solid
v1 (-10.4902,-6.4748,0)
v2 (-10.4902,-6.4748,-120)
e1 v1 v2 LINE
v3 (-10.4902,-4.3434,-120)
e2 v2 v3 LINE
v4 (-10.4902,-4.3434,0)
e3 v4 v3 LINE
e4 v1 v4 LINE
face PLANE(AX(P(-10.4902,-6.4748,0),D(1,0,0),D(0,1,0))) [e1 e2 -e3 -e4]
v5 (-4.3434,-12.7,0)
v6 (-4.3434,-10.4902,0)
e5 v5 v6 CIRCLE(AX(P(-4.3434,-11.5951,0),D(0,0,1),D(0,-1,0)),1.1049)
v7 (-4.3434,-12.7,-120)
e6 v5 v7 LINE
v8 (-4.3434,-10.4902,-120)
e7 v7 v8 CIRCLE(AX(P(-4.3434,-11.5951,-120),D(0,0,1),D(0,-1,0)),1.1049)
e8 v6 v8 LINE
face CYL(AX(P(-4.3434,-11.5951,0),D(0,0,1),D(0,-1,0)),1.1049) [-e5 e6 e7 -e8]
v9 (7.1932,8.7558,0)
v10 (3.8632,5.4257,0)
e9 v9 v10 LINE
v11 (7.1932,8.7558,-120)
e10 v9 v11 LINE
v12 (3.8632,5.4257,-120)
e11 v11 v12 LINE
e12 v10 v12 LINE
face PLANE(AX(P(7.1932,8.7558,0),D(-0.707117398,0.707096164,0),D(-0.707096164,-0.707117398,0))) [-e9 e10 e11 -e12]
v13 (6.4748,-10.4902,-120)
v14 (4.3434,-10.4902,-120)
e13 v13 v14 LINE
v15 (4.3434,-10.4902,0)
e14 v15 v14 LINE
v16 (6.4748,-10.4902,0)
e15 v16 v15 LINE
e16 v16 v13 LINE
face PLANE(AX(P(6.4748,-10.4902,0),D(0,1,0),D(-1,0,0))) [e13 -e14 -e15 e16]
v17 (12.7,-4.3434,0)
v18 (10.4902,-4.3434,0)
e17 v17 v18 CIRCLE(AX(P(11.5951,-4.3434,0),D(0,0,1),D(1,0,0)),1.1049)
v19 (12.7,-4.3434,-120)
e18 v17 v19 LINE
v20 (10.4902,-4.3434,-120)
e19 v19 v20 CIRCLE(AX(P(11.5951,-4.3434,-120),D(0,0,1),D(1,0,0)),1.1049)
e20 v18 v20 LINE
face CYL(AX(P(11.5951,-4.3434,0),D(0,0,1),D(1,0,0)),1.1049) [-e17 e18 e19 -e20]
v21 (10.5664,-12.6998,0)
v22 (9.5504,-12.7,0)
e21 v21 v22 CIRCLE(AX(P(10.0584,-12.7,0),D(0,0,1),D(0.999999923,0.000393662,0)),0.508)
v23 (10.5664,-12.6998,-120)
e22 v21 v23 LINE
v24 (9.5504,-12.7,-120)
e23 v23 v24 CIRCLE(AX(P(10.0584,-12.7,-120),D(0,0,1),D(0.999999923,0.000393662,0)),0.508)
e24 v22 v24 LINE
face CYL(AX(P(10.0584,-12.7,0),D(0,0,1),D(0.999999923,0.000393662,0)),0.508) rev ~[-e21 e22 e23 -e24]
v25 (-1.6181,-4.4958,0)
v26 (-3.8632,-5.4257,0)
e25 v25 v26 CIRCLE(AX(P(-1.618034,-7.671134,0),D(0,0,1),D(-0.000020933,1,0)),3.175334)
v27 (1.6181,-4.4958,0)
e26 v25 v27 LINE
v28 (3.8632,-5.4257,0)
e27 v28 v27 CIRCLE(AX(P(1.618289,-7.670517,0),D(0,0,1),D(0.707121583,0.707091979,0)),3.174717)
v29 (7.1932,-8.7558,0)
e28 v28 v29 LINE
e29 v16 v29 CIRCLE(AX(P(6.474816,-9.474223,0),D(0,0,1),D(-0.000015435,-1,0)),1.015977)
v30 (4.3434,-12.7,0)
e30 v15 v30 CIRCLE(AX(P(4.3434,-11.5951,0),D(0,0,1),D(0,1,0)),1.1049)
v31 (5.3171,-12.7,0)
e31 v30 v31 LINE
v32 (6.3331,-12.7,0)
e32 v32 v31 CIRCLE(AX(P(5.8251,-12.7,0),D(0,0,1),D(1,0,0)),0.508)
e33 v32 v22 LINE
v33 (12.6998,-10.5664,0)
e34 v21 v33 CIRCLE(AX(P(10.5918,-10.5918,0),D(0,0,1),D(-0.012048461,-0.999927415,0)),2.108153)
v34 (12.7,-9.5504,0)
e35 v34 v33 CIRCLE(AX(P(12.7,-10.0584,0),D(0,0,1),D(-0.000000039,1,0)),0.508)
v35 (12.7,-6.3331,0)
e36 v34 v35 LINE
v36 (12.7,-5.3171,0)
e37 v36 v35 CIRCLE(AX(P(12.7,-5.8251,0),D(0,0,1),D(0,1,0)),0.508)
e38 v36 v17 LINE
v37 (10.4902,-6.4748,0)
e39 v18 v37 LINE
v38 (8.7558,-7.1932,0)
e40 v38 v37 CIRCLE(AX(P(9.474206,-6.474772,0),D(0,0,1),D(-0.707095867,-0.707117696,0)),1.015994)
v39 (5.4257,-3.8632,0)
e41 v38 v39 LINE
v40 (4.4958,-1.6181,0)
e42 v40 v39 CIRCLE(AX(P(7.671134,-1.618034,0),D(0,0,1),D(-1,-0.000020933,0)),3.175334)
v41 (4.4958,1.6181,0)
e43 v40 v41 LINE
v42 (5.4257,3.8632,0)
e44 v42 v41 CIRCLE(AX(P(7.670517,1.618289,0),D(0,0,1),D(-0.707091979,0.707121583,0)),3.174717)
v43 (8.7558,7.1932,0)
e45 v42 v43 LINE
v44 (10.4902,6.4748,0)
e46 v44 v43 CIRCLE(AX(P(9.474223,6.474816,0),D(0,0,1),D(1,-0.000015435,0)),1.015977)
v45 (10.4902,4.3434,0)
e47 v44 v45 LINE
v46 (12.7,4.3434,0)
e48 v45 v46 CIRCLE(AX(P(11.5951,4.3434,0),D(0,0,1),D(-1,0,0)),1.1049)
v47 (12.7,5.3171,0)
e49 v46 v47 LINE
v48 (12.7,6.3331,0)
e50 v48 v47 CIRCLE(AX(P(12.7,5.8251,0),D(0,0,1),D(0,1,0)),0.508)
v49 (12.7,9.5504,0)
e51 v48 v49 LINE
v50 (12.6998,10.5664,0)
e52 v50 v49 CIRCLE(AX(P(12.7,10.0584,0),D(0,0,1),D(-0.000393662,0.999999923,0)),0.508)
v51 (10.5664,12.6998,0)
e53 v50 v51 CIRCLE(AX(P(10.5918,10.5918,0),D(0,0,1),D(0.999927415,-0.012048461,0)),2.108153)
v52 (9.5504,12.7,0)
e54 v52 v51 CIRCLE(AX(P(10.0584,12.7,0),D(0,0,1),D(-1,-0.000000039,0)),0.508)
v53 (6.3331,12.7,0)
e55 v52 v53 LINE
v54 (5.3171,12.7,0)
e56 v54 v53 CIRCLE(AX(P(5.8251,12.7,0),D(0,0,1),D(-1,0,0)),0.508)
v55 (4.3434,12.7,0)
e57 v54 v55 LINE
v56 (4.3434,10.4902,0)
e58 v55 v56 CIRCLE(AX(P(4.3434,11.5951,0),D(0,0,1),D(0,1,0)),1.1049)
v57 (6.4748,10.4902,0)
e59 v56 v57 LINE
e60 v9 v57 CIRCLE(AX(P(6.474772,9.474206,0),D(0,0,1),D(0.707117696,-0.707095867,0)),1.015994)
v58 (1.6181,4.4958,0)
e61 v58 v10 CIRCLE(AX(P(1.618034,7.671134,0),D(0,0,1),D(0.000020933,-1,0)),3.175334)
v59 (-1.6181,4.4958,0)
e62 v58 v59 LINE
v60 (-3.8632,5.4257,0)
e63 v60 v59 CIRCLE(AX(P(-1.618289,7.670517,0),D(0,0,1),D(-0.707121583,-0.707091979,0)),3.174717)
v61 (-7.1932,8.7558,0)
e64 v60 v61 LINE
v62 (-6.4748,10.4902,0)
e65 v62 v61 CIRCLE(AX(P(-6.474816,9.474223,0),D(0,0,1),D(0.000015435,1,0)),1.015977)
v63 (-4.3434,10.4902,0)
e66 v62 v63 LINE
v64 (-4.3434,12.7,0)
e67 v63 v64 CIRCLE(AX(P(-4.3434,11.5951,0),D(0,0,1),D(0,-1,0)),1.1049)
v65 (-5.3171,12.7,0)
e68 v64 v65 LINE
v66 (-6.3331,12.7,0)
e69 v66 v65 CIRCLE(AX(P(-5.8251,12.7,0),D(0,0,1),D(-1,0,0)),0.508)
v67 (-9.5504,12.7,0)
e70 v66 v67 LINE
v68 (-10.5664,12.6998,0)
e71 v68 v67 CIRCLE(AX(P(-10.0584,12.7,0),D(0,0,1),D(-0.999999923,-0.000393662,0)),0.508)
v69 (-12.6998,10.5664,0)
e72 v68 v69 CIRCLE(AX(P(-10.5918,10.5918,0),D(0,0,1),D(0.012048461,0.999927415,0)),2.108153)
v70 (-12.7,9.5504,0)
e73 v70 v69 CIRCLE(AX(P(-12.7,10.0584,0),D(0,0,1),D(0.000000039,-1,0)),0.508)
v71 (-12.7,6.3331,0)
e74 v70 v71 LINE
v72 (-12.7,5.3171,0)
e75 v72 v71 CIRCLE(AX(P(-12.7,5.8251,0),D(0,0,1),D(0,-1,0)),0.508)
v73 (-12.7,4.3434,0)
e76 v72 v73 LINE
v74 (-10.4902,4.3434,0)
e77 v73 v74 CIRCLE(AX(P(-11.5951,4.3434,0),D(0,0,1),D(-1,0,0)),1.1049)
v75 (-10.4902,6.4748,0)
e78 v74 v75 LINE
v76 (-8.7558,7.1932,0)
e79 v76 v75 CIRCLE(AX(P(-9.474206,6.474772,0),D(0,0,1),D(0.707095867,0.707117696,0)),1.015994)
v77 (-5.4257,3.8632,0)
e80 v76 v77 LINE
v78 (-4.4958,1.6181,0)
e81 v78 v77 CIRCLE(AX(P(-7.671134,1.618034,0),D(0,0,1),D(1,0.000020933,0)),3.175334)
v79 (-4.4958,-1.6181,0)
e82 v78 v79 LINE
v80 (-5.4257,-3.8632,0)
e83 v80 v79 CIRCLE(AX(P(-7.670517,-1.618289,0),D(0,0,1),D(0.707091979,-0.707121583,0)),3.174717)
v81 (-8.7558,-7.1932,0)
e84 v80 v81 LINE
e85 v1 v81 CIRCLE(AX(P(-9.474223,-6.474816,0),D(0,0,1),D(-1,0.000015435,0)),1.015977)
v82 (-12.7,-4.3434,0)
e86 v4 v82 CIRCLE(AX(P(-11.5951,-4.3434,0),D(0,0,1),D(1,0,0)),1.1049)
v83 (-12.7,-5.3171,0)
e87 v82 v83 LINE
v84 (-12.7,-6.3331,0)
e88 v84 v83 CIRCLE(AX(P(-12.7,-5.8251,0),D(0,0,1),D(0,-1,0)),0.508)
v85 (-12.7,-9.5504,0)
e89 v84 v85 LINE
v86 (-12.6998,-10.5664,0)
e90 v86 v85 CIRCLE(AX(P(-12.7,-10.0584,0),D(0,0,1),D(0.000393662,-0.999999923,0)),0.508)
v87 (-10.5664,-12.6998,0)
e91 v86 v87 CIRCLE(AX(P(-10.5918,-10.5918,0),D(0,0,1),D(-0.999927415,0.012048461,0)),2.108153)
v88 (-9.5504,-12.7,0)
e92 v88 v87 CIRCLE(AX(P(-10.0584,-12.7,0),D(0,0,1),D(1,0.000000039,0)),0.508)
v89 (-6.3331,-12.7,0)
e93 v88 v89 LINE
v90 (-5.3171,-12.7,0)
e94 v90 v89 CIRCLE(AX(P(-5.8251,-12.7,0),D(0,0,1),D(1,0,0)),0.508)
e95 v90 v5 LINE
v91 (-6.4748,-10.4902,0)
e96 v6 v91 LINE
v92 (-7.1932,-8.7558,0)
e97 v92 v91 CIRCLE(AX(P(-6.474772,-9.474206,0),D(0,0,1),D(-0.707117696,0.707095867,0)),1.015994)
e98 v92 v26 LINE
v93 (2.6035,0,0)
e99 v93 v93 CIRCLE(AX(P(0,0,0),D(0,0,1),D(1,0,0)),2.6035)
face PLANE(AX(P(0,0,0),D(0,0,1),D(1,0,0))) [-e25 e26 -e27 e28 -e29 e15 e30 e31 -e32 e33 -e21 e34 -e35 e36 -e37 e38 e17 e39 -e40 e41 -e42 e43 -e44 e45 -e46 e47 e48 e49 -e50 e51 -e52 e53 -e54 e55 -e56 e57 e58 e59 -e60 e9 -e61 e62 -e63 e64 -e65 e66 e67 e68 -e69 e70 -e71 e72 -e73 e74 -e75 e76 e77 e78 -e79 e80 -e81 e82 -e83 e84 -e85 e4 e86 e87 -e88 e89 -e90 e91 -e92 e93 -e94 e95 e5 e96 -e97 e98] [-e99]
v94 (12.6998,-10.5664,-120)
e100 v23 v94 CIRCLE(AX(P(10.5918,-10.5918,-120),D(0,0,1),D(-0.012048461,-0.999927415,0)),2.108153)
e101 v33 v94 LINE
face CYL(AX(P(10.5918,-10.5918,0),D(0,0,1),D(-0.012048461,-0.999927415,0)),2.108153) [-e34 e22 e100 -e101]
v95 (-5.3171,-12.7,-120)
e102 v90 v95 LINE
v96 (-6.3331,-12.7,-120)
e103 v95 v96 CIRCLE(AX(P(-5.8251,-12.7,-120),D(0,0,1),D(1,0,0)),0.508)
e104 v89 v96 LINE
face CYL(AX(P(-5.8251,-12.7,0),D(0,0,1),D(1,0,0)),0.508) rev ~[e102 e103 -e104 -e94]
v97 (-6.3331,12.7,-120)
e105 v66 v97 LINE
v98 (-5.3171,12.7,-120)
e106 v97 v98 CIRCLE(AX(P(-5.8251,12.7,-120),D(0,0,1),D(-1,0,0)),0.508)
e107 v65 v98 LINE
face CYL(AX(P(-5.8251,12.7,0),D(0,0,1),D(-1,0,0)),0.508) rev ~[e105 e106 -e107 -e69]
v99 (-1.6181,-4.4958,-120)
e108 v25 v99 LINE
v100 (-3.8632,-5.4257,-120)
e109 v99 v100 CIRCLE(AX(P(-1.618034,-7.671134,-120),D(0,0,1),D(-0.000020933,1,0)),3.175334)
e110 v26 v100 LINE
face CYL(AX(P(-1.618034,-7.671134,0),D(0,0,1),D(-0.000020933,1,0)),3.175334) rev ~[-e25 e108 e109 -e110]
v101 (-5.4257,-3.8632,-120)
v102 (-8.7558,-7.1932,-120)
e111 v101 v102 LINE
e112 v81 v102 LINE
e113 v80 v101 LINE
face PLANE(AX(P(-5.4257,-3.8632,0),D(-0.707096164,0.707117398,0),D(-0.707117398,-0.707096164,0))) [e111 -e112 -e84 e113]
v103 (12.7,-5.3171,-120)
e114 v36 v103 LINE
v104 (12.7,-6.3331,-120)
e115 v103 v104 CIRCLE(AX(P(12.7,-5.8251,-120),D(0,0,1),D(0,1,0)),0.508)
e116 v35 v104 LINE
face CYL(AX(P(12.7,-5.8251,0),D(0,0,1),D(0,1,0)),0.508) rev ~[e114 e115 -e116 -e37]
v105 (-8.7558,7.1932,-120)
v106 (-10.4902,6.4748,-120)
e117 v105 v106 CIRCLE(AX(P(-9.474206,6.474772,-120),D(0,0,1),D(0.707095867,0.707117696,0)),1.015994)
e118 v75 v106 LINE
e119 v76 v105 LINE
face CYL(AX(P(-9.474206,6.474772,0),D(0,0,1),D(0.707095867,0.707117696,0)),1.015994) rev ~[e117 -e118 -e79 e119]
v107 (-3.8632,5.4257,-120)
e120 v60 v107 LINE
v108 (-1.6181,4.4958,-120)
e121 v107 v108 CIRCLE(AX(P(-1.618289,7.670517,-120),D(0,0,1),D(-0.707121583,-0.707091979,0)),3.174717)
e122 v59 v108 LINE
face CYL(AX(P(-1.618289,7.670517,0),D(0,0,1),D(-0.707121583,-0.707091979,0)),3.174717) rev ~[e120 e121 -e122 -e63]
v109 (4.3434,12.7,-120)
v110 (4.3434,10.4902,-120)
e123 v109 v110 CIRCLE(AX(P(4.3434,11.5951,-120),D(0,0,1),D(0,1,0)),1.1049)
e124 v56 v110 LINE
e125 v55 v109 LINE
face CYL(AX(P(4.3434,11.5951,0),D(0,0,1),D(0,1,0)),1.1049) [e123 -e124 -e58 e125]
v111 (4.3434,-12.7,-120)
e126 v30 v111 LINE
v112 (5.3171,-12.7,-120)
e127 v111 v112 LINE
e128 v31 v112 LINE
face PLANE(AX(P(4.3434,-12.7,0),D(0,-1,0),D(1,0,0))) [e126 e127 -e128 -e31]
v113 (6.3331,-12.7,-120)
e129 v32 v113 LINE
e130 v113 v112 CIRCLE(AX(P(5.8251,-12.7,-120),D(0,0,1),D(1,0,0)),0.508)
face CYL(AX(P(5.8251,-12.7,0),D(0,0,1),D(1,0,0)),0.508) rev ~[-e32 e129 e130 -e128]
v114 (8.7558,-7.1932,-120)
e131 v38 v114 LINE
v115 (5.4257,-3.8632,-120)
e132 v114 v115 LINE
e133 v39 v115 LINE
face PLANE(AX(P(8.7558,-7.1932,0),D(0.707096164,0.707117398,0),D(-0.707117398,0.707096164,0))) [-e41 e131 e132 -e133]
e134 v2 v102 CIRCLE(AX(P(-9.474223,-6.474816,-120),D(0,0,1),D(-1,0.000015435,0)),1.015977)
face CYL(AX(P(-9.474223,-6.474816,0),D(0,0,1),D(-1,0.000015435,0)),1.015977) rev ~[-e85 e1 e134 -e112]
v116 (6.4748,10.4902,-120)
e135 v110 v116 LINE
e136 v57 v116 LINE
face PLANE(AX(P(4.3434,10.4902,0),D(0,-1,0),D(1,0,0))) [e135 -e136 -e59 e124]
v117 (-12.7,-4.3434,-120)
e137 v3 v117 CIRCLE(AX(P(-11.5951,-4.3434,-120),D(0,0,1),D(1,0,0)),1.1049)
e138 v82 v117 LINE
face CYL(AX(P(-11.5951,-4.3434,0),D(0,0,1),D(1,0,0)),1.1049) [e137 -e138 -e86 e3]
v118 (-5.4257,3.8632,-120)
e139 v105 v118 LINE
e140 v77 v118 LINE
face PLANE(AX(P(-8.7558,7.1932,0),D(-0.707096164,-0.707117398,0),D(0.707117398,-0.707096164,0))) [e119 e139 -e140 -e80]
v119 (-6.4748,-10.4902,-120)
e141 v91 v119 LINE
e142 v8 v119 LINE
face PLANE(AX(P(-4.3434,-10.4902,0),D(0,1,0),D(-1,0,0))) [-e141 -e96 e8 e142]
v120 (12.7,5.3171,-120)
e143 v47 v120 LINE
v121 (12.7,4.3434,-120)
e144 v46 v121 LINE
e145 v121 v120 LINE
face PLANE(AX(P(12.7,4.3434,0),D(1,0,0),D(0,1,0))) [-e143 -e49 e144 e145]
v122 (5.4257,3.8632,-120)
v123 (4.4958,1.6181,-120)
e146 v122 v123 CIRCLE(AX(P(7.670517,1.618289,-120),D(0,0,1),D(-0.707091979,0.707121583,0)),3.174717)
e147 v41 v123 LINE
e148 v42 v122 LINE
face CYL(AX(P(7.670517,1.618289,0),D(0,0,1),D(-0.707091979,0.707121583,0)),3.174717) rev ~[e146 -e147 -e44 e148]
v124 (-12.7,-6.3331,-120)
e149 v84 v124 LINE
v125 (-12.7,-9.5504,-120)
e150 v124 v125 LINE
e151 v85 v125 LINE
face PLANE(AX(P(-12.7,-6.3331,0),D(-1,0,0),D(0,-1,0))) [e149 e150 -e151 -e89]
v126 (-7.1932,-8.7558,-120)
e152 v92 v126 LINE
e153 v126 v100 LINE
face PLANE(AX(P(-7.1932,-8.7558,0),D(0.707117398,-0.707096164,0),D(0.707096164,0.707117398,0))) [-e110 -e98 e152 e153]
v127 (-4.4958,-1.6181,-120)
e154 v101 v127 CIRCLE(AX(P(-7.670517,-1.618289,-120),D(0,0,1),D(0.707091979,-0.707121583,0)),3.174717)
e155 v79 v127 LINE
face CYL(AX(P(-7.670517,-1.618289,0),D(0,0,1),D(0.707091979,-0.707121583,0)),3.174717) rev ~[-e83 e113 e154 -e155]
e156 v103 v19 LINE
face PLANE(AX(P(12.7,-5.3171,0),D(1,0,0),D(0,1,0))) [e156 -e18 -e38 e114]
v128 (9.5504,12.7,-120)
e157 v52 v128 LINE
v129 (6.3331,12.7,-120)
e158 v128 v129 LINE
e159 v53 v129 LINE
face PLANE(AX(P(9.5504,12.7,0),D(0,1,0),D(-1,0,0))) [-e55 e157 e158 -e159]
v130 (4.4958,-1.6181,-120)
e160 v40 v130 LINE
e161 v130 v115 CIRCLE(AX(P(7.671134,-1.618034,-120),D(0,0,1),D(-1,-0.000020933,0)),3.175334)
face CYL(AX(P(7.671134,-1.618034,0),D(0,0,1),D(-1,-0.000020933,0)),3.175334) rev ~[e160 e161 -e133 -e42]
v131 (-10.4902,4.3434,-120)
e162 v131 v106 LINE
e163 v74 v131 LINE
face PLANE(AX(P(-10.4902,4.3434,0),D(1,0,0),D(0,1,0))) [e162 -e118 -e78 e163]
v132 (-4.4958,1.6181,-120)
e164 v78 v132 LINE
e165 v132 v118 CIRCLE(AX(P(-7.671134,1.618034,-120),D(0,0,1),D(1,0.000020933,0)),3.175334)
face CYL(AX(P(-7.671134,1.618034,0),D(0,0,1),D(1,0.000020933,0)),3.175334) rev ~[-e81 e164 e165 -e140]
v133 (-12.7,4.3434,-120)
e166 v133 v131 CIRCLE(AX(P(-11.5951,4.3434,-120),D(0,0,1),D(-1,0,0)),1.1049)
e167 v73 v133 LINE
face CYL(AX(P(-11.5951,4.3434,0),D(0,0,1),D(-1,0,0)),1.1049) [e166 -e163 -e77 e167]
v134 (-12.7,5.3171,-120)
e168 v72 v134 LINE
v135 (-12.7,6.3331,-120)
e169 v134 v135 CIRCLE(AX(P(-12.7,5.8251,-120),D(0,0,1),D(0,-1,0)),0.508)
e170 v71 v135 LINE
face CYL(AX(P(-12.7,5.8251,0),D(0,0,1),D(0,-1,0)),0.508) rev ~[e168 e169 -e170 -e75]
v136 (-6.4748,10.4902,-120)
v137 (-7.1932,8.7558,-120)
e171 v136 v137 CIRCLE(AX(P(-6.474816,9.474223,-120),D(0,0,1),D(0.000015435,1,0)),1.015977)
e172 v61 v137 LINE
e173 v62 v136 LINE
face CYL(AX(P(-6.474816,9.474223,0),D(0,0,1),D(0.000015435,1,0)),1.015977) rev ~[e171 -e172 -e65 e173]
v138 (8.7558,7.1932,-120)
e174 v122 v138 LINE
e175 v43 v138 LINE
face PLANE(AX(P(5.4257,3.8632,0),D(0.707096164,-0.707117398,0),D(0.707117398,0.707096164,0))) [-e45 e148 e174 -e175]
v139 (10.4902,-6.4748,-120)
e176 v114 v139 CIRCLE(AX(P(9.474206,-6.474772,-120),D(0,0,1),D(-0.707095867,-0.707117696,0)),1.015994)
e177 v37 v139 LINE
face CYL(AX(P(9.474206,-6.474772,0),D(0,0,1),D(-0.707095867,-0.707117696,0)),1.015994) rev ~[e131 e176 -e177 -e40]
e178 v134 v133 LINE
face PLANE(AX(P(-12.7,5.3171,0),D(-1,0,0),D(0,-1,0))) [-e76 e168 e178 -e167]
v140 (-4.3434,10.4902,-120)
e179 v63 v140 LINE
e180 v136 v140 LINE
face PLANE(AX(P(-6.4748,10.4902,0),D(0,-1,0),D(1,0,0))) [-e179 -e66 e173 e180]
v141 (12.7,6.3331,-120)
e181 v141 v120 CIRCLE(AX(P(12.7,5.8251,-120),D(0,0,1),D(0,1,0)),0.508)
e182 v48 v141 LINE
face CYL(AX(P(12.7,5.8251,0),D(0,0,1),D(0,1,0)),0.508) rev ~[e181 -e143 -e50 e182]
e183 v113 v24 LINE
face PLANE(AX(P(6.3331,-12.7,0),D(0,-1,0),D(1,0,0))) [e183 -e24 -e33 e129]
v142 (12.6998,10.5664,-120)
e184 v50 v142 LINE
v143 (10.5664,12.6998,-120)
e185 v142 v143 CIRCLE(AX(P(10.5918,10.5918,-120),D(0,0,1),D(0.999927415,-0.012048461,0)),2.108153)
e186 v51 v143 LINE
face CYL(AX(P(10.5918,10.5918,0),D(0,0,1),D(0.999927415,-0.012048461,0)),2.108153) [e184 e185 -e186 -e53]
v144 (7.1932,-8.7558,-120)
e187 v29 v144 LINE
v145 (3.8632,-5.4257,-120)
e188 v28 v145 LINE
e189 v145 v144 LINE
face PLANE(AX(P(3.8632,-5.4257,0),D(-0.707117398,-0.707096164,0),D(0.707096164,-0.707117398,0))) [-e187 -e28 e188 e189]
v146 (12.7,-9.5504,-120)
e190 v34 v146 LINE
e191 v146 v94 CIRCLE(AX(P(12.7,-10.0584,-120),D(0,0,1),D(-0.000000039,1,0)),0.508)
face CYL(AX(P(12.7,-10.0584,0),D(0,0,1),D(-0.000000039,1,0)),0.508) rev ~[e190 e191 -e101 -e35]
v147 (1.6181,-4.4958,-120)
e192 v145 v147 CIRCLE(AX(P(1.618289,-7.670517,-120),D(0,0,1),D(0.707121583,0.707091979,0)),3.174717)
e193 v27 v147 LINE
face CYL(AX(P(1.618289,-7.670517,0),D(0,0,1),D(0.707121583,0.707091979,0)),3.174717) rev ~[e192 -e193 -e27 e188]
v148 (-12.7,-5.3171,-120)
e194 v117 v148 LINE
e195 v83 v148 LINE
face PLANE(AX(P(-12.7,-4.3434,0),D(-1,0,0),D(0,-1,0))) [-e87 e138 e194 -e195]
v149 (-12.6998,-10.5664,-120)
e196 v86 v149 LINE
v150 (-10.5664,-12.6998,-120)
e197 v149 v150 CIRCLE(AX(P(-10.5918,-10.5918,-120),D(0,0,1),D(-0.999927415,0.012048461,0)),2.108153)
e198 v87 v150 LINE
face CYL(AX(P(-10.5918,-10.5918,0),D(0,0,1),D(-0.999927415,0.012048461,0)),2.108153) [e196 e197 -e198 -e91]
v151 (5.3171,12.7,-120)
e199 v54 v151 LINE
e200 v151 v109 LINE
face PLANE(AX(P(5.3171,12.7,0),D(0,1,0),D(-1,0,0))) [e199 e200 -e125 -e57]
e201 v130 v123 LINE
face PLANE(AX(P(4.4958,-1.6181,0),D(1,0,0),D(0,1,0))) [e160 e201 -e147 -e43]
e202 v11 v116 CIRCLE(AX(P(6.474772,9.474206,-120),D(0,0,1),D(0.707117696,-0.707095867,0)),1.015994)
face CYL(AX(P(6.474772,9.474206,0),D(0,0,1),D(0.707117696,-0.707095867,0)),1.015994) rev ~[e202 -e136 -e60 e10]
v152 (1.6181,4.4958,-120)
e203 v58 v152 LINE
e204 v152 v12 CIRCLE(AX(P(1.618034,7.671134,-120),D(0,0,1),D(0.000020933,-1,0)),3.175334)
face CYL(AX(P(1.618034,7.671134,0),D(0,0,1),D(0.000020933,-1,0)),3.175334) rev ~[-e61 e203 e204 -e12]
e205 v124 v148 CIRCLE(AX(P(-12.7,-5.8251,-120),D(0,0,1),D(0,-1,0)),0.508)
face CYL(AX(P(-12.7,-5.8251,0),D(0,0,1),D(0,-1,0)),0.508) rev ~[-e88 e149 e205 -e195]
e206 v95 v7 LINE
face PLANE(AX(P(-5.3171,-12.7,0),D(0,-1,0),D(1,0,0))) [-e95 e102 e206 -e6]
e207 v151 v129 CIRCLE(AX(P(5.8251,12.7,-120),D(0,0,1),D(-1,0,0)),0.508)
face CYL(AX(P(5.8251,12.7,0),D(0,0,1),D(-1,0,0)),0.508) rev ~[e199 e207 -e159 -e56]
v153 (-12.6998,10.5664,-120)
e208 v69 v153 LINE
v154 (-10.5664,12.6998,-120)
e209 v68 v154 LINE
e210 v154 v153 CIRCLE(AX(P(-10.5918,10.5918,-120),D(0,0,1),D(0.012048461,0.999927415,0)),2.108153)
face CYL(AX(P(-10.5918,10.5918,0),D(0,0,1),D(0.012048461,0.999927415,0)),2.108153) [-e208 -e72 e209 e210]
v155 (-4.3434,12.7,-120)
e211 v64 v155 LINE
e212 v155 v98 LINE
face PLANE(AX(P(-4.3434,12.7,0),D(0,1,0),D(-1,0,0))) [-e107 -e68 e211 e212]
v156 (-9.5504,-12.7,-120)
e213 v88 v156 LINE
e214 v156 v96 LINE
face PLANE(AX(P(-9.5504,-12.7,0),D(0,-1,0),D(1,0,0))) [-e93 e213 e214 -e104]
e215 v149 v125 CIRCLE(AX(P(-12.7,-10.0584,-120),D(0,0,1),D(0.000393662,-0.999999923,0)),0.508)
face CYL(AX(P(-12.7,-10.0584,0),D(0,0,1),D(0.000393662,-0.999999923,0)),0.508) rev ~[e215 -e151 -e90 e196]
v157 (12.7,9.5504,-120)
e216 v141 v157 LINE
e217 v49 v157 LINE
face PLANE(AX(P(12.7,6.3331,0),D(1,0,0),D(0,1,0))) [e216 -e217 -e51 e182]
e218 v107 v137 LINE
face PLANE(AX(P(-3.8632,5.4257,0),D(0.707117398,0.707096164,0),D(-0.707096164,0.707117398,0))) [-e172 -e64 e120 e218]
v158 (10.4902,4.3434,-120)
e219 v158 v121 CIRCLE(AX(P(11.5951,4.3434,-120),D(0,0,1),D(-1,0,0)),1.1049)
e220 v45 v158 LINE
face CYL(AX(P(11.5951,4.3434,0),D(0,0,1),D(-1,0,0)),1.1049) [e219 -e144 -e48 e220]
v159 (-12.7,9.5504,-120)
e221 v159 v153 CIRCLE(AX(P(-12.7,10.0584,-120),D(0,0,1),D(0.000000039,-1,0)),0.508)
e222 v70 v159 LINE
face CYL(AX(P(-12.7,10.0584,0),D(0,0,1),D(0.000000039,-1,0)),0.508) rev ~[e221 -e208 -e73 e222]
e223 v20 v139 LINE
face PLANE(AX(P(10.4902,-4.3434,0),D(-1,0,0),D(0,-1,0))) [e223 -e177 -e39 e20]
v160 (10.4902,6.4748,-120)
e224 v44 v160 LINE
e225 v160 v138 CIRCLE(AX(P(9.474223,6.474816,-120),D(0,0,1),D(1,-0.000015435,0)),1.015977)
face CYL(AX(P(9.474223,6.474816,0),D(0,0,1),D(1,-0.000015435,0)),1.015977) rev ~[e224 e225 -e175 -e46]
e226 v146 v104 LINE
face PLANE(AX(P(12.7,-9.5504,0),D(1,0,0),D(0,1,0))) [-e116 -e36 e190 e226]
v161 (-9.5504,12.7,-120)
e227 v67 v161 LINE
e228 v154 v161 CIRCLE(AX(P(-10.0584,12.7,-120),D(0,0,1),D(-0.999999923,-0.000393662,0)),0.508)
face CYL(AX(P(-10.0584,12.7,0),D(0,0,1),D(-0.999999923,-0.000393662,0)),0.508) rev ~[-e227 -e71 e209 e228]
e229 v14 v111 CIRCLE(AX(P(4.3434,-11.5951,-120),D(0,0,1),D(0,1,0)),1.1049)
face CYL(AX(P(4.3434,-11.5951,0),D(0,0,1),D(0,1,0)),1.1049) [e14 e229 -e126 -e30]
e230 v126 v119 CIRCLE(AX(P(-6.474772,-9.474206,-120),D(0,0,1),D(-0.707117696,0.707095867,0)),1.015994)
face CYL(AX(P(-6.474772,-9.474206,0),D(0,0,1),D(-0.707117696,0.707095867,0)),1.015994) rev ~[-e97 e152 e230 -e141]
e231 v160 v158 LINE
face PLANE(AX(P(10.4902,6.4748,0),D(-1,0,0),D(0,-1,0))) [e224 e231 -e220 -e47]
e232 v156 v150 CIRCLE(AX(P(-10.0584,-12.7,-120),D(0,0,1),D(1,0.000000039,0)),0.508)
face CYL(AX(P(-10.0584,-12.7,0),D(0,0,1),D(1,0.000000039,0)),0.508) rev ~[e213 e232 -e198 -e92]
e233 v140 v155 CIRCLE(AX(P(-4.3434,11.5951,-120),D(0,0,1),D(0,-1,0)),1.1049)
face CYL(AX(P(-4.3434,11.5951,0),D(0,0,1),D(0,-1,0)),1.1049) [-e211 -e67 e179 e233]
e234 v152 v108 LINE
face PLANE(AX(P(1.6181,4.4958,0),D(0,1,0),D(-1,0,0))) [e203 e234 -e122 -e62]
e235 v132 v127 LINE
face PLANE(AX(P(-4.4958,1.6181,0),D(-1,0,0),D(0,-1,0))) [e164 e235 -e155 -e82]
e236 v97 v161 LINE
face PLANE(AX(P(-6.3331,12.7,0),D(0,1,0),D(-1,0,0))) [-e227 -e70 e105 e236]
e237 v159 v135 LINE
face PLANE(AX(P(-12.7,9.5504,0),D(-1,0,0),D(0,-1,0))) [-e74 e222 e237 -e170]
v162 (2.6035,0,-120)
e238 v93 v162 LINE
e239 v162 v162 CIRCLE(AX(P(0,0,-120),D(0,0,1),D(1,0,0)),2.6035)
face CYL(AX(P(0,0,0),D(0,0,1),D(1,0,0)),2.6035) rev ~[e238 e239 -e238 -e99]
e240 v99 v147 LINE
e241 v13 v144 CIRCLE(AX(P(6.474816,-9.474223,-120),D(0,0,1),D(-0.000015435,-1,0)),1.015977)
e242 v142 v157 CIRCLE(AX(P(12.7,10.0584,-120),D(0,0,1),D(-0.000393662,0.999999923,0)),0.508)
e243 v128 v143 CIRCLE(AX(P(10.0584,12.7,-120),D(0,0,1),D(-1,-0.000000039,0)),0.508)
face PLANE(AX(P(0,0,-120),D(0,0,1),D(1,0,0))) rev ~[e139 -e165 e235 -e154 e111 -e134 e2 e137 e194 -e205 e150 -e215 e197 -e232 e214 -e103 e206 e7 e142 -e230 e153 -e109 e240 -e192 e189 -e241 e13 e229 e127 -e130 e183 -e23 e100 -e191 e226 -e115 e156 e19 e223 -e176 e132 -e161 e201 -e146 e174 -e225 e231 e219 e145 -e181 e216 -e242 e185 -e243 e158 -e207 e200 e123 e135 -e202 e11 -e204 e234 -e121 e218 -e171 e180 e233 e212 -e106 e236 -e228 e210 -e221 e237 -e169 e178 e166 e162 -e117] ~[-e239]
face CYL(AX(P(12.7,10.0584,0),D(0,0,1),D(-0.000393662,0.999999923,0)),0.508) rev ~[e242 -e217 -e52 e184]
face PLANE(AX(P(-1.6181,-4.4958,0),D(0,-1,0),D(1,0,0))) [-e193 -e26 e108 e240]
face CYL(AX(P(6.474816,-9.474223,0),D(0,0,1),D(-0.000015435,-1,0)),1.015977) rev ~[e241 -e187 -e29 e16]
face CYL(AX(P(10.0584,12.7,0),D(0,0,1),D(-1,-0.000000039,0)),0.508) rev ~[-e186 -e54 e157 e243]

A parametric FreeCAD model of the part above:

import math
import FreeCAD as App
import Part
import Sketcher
from FreeCAD import Vector
Q = App.Units.Quantity

doc = App.newDocument("Part")
body = doc.addObject("PartDesign::Body", "Body")

# Sketch on XY plane
sketch1 = doc.addObject("Sketcher::SketchObject", "Sketch")
body.addObject(sketch1)
sketch1.AttachmentSupport = (doc.XY_Plane, [""])
sketch1.MapMode = "FlatFace"
sketch1.addGeometry([
    Part.ArcOfCircle(Part.Circle(Vector(-12.7, -10.0584, 0), Vector(0, 0, 1), 0.508), math.radians(-89.977443), math.radians(90)),  # 0
    Part.ArcOfCircle(Part.Circle(Vector(-10.5918, -10.5918, 0), Vector(0, 0, 1), 2.108153), math.radians(179.309657), math.radians(270.690343)),  # 1
    Part.ArcOfCircle(Part.Circle(Vector(-10.0584, -12.7, 0), Vector(0, 0, 1), 0.508), math.radians(0), math.radians(179.977443)),  # 2
    Part.LineSegment(Vector(-9.5504, -12.7, 0), Vector(-6.3331, -12.7, 0)),  # 3
    Part.ArcOfCircle(Part.Circle(Vector(-5.8251, -12.7, 0), Vector(0, 0, 1), 0.508), math.radians(0), math.radians(180)),  # 4
    Part.LineSegment(Vector(-5.3171, -12.7, 0), Vector(-4.3434, -12.7, 0)),  # 5
    Part.ArcOfCircle(Part.Circle(Vector(-4.3434, -11.5951, 0), Vector(0, 0, 1), 1.1049), math.radians(-90), math.radians(90)),  # 6
    Part.LineSegment(Vector(-4.3434, -10.4902, 0), Vector(-6.4748, -10.4902, 0)),  # 7
    Part.ArcOfCircle(Part.Circle(Vector(-6.4748, -9.4742, 0), Vector(0, 0, 1), 1.015971), math.radians(135), math.radians(270)),  # 8
    Part.LineSegment(Vector(-7.1932, -8.7558, 0), Vector(-3.8632, -5.4257, 0)),  # 9
    Part.ArcOfCircle(Part.Circle(Vector(-1.6181, -7.6708, 0), Vector(0, 0, 1), 3.175), math.radians(90), math.radians(135)),  # 10
    Part.LineSegment(Vector(-1.6181, -4.4958, 0), Vector(1.6181, -4.4958, 0)),  # 11
    Part.ArcOfCircle(Part.Circle(Vector(1.6181, -7.6708, 0), Vector(0, 0, 1), 3.175051), math.radians(45), math.radians(90)),  # 12
    Part.LineSegment(Vector(3.8632, -5.4257, 0), Vector(7.1932, -8.7558, 0)),  # 13
    Part.ArcOfCircle(Part.Circle(Vector(6.4748, -9.4742, 0), Vector(0, 0, 1), 1.016), math.radians(-90), math.radians(45)),  # 14
    Part.LineSegment(Vector(6.4748, -10.4902, 0), Vector(4.3434, -10.4902, 0)),  # 15
    Part.ArcOfCircle(Part.Circle(Vector(4.3434, -11.5951, 0), Vector(0, 0, 1), 1.1049), math.radians(90), math.radians(270)),  # 16
    Part.LineSegment(Vector(4.3434, -12.7, 0), Vector(5.3171, -12.7, 0)),  # 17
    Part.ArcOfCircle(Part.Circle(Vector(5.8251, -12.7, 0), Vector(0, 0, 1), 0.508), math.radians(0), math.radians(180)),  # 18
    Part.LineSegment(Vector(6.3331, -12.7, 0), Vector(9.5504, -12.7, 0)),  # 19
    Part.ArcOfCircle(Part.Circle(Vector(10.0584, -12.7, 0), Vector(0, 0, 1), 0.508), math.radians(0.022557), math.radians(180)),  # 20
    Part.ArcOfCircle(Part.Circle(Vector(10.5918, -10.5918, 0), Vector(0, 0, 1), 2.108153), math.radians(-90.690343), math.radians(0.690343)),  # 21
    Part.ArcOfCircle(Part.Circle(Vector(12.7, -10.0584, 0), Vector(0, 0, 1), 0.508), math.radians(90), math.radians(269.977443)),  # 22
    Part.LineSegment(Vector(12.7, -9.5504, 0), Vector(12.7, -6.3331, 0)),  # 23
    Part.ArcOfCircle(Part.Circle(Vector(12.7, -5.8251, 0), Vector(0, 0, 1), 0.508), math.radians(90), math.radians(270)),  # 24
    Part.LineSegment(Vector(12.7, -5.3171, 0), Vector(12.7, -4.3434, 0)),  # 25
    Part.ArcOfCircle(Part.Circle(Vector(11.5951, -4.3434, 0), Vector(0, 0, 1), 1.1049), math.radians(0), math.radians(180)),  # 26
    Part.LineSegment(Vector(10.4902, -4.3434, 0), Vector(10.4902, -6.4748, 0)),  # 27
    Part.ArcOfCircle(Part.Circle(Vector(9.4742, -6.4748, 0), Vector(0, 0, 1), 1.015971), math.radians(-135), math.radians(0)),  # 28
    Part.LineSegment(Vector(8.7558, -7.1932, 0), Vector(5.4257, -3.8632, 0)),  # 29
    Part.ArcOfCircle(Part.Circle(Vector(7.6708, -1.6181, 0), Vector(0, 0, 1), 3.175), math.radians(180), math.radians(225)),  # 30
    Part.LineSegment(Vector(4.4958, -1.6181, 0), Vector(4.4958, 1.6181, 0)),  # 31
    Part.ArcOfCircle(Part.Circle(Vector(7.6708, 1.6181, 0), Vector(0, 0, 1), 3.175051), math.radians(135), math.radians(180)),  # 32
    Part.LineSegment(Vector(5.4257, 3.8632, 0), Vector(8.7558, 7.1932, 0)),  # 33
    Part.ArcOfCircle(Part.Circle(Vector(9.4742, 6.4748, 0), Vector(0, 0, 1), 1.016), math.radians(0), math.radians(135)),  # 34
    Part.LineSegment(Vector(10.4902, 6.4748, 0), Vector(10.4902, 4.3434, 0)),  # 35
    Part.ArcOfCircle(Part.Circle(Vector(11.5951, 4.3434, 0), Vector(0, 0, 1), 1.1049), math.radians(180), math.radians(360)),  # 36
    Part.LineSegment(Vector(12.7, 4.3434, 0), Vector(12.7, 5.3171, 0)),  # 37
    Part.ArcOfCircle(Part.Circle(Vector(12.7, 5.8251, 0), Vector(0, 0, 1), 0.508), math.radians(90), math.radians(270)),  # 38
    Part.LineSegment(Vector(12.7, 6.3331, 0), Vector(12.7, 9.5504, 0)),  # 39
    Part.ArcOfCircle(Part.Circle(Vector(12.7, 10.0584, 0), Vector(0, 0, 1), 0.508), math.radians(90.022557), math.radians(270)),  # 40
    Part.ArcOfCircle(Part.Circle(Vector(10.5918, 10.5918, 0), Vector(0, 0, 1), 2.108153), math.radians(-0.690343), math.radians(90.690343)),  # 41
    Part.ArcOfCircle(Part.Circle(Vector(10.0584, 12.7, 0), Vector(0, 0, 1), 0.508), math.radians(180), math.radians(359.977443)),  # 42
    Part.LineSegment(Vector(9.5504, 12.7, 0), Vector(6.3331, 12.7, 0)),  # 43
    Part.ArcOfCircle(Part.Circle(Vector(5.8251, 12.7, 0), Vector(0, 0, 1), 0.508), math.radians(180), math.radians(360)),  # 44
    Part.LineSegment(Vector(5.3171, 12.7, 0), Vector(4.3434, 12.7, 0)),  # 45
    Part.ArcOfCircle(Part.Circle(Vector(4.3434, 11.5951, 0), Vector(0, 0, 1), 1.1049), math.radians(90), math.radians(270)),  # 46
    Part.LineSegment(Vector(4.3434, 10.4902, 0), Vector(6.4748, 10.4902, 0)),  # 47
    Part.ArcOfCircle(Part.Circle(Vector(6.4748, 9.4742, 0), Vector(0, 0, 1), 1.015971), math.radians(-45), math.radians(90)),  # 48
    Part.LineSegment(Vector(7.1932, 8.7558, 0), Vector(3.8632, 5.4257, 0)),  # 49
    Part.ArcOfCircle(Part.Circle(Vector(1.6181, 7.6708, 0), Vector(0, 0, 1), 3.175), math.radians(-90), math.radians(-45)),  # 50
    Part.LineSegment(Vector(1.6181, 4.4958, 0), Vector(-1.6181, 4.4958, 0)),  # 51
    Part.ArcOfCircle(Part.Circle(Vector(-1.6181, 7.6708, 0), Vector(0, 0, 1), 3.175051), math.radians(-135), math.radians(-90)),  # 52
    Part.LineSegment(Vector(-3.8632, 5.4257, 0), Vector(-7.1932, 8.7558, 0)),  # 53
    Part.ArcOfCircle(Part.Circle(Vector(-6.4748, 9.4742, 0), Vector(0, 0, 1), 1.016), math.radians(90), math.radians(225)),  # 54
    Part.LineSegment(Vector(-6.4748, 10.4902, 0), Vector(-4.3434, 10.4902, 0)),  # 55
    Part.ArcOfCircle(Part.Circle(Vector(-4.3434, 11.5951, 0), Vector(0, 0, 1), 1.1049), math.radians(-90), math.radians(90)),  # 56
    Part.LineSegment(Vector(-4.3434, 12.7, 0), Vector(-5.3171, 12.7, 0)),  # 57
    Part.ArcOfCircle(Part.Circle(Vector(-5.8251, 12.7, 0), Vector(0, 0, 1), 0.508), math.radians(180), math.radians(360)),  # 58
    Part.LineSegment(Vector(-6.3331, 12.7, 0), Vector(-9.5504, 12.7, 0)),  # 59
    Part.ArcOfCircle(Part.Circle(Vector(-10.0584, 12.7, 0), Vector(0, 0, 1), 0.508), math.radians(-179.977443), math.radians(0)),  # 60
    Part.ArcOfCircle(Part.Circle(Vector(-10.5918, 10.5918, 0), Vector(0, 0, 1), 2.108153), math.radians(89.309657), math.radians(180.690343)),  # 61
    Part.ArcOfCircle(Part.Circle(Vector(-12.7, 10.0584, 0), Vector(0, 0, 1), 0.508), math.radians(-90), math.radians(89.977443)),  # 62
    Part.LineSegment(Vector(-12.7, 9.5504, 0), Vector(-12.7, 6.3331, 0)),  # 63
    Part.ArcOfCircle(Part.Circle(Vector(-12.7, 5.8251, 0), Vector(0, 0, 1), 0.508), math.radians(-90), math.radians(90)),  # 64
    Part.LineSegment(Vector(-12.7, 5.3171, 0), Vector(-12.7, 4.3434, 0)),  # 65
    Part.ArcOfCircle(Part.Circle(Vector(-11.5951, 4.3434, 0), Vector(0, 0, 1), 1.1049), math.radians(180), math.radians(360)),  # 66
    Part.LineSegment(Vector(-10.4902, 4.3434, 0), Vector(-10.4902, 6.4748, 0)),  # 67
    Part.ArcOfCircle(Part.Circle(Vector(-9.4742, 6.4748, 0), Vector(0, 0, 1), 1.015971), math.radians(45), math.radians(180)),  # 68
    Part.LineSegment(Vector(-8.7558, 7.1932, 0), Vector(-5.4257, 3.8632, 0)),  # 69
    Part.ArcOfCircle(Part.Circle(Vector(-7.6708, 1.6181, 0), Vector(0, 0, 1), 3.175), math.radians(0), math.radians(45)),  # 70
    Part.LineSegment(Vector(-4.4958, 1.6181, 0), Vector(-4.4958, -1.6181, 0)),  # 71
    Part.ArcOfCircle(Part.Circle(Vector(-7.6708, -1.6181, 0), Vector(0, 0, 1), 3.175051), math.radians(-45), math.radians(0)),  # 72
    Part.LineSegment(Vector(-5.4257, -3.8632, 0), Vector(-8.7558, -7.1932, 0)),  # 73
    Part.ArcOfCircle(Part.Circle(Vector(-9.4742, -6.4748, 0), Vector(0, 0, 1), 1.016), math.radians(180), math.radians(315)),  # 74
    Part.LineSegment(Vector(-10.4902, -6.4748, 0), Vector(-10.4902, -4.3434, 0)),  # 75
    Part.ArcOfCircle(Part.Circle(Vector(-11.5951, -4.3434, 0), Vector(0, 0, 1), 1.1049), math.radians(0), math.radians(180)),  # 76
    Part.LineSegment(Vector(-12.7, -4.3434, 0), Vector(-12.7, -5.3171, 0)),  # 77
    Part.ArcOfCircle(Part.Circle(Vector(-12.7, -5.8251, 0), Vector(0, 0, 1), 0.508), math.radians(-90), math.radians(90)),  # 78
    Part.LineSegment(Vector(-12.7, -6.3331, 0), Vector(-12.7, -9.5504, 0)),  # 79
    Part.Circle(Vector(0, 0, 0), Vector(0, 0, 1), 2.6035),  # 80
], False)
sketch1.addConstraint([
    Sketcher.Constraint("Coincident", 0, 1, 1, 1),
    Sketcher.Constraint("Coincident", 1, 2, 2, 2),
    Sketcher.Constraint("Coincident", 2, 1, 3, 1),
    Sketcher.Constraint("Coincident", 3, 2, 4, 2),
    Sketcher.Constraint("Coincident", 4, 1, 5, 1),
    Sketcher.Constraint("Tangent", 5, 2, 6, 1),
    Sketcher.Constraint("Tangent", 6, 2, 7, 1),
    Sketcher.Constraint("Tangent", 7, 2, 8, 2),
    Sketcher.Constraint("Tangent", 8, 1, 9, 1),
    Sketcher.Constraint("Tangent", 9, 2, 10, 2),
    Sketcher.Constraint("Tangent", 10, 1, 11, 1),
    Sketcher.Constraint("Tangent", 11, 2, 12, 2),
    Sketcher.Constraint("Tangent", 12, 1, 13, 1),
    Sketcher.Constraint("Tangent", 13, 2, 14, 2),
    Sketcher.Constraint("Tangent", 14, 1, 15, 1),
    Sketcher.Constraint("Tangent", 15, 2, 16, 1),
    Sketcher.Constraint("Tangent", 16, 2, 17, 1),
    Sketcher.Constraint("Coincident", 17, 2, 18, 2),
    Sketcher.Constraint("Coincident", 18, 1, 19, 1),
    Sketcher.Constraint("Coincident", 19, 2, 20, 2),
    Sketcher.Constraint("Coincident", 20, 1, 21, 1),
    Sketcher.Constraint("Coincident", 21, 2, 22, 2),
    Sketcher.Constraint("Coincident", 22, 1, 23, 1),
    Sketcher.Constraint("Coincident", 23, 2, 24, 2),
    Sketcher.Constraint("Coincident", 24, 1, 25, 1),
    Sketcher.Constraint("Tangent", 25, 2, 26, 1),
    Sketcher.Constraint("Tangent", 26, 2, 27, 1),
    Sketcher.Constraint("Tangent", 27, 2, 28, 2),
    Sketcher.Constraint("Tangent", 28, 1, 29, 1),
    Sketcher.Constraint("Tangent", 29, 2, 30, 2),
    Sketcher.Constraint("Tangent", 30, 1, 31, 1),
    Sketcher.Constraint("Tangent", 31, 2, 32, 2),
    Sketcher.Constraint("Tangent", 32, 1, 33, 1),
    Sketcher.Constraint("Tangent", 33, 2, 34, 2),
    Sketcher.Constraint("Tangent", 34, 1, 35, 1),
    Sketcher.Constraint("Tangent", 35, 2, 36, 1),
    Sketcher.Constraint("Tangent", 36, 2, 37, 1),
    Sketcher.Constraint("Coincident", 37, 2, 38, 2),
    Sketcher.Constraint("Coincident", 38, 1, 39, 1),
    Sketcher.Constraint("Coincident", 39, 2, 40, 2),
    Sketcher.Constraint("Coincident", 40, 1, 41, 1),
    Sketcher.Constraint("Coincident", 41, 2, 42, 2),
    Sketcher.Constraint("Coincident", 42, 1, 43, 1),
    Sketcher.Constraint("Coincident", 43, 2, 44, 2),
    Sketcher.Constraint("Coincident", 44, 1, 45, 1),
    Sketcher.Constraint("Tangent", 45, 2, 46, 1),
    Sketcher.Constraint("Tangent", 46, 2, 47, 1),
    Sketcher.Constraint("Tangent", 47, 2, 48, 2),
    Sketcher.Constraint("Tangent", 48, 1, 49, 1),
    Sketcher.Constraint("Tangent", 49, 2, 50, 2),
    Sketcher.Constraint("Tangent", 50, 1, 51, 1),
    Sketcher.Constraint("Tangent", 51, 2, 52, 2),
    Sketcher.Constraint("Tangent", 52, 1, 53, 1),
    Sketcher.Constraint("Tangent", 53, 2, 54, 2),
    Sketcher.Constraint("Tangent", 54, 1, 55, 1),
    Sketcher.Constraint("Tangent", 55, 2, 56, 1),
    Sketcher.Constraint("Tangent", 56, 2, 57, 1),
    Sketcher.Constraint("Coincident", 57, 2, 58, 2),
    Sketcher.Constraint("Coincident", 58, 1, 59, 1),
    Sketcher.Constraint("Coincident", 59, 2, 60, 2),
    Sketcher.Constraint("Coincident", 60, 1, 61, 1),
    Sketcher.Constraint("Coincident", 61, 2, 62, 2),
    Sketcher.Constraint("Coincident", 62, 1, 63, 1),
    Sketcher.Constraint("Coincident", 63, 2, 64, 2),
    Sketcher.Constraint("Coincident", 64, 1, 65, 1),
    Sketcher.Constraint("Tangent", 65, 2, 66, 1),
    Sketcher.Constraint("Tangent", 66, 2, 67, 1),
    Sketcher.Constraint("Tangent", 67, 2, 68, 2),
    Sketcher.Constraint("Tangent", 68, 1, 69, 1),
    Sketcher.Constraint("Tangent", 69, 2, 70, 2),
    Sketcher.Constraint("Tangent", 70, 1, 71, 1),
    Sketcher.Constraint("Tangent", 71, 2, 72, 2),
    Sketcher.Constraint("Tangent", 72, 1, 73, 1),
    Sketcher.Constraint("Tangent", 73, 2, 74, 2),
    Sketcher.Constraint("Tangent", 74, 1, 75, 1),
    Sketcher.Constraint("Tangent", 75, 2, 76, 1),
    Sketcher.Constraint("Tangent", 76, 2, 77, 1),
    Sketcher.Constraint("Coincident", 77, 2, 78, 2),
    Sketcher.Constraint("Coincident", 78, 1, 79, 1),
    Sketcher.Constraint("Coincident", 79, 2, 0, 2),
    Sketcher.Constraint("Horizontal", 3),
    Sketcher.Constraint("Horizontal", 5),
    Sketcher.Constraint("Horizontal", 7),
    Sketcher.Constraint("Horizontal", 11),
    Sketcher.Constraint("Horizontal", 15),
    Sketcher.Constraint("Horizontal", 17),
    Sketcher.Constraint("Horizontal", 19),
    Sketcher.Constraint("Vertical", 23),
    Sketcher.Constraint("Vertical", 25),
    Sketcher.Constraint("Vertical", 27),
    Sketcher.Constraint("Vertical", 31),
    Sketcher.Constraint("Vertical", 35),
    Sketcher.Constraint("Vertical", 37),
    Sketcher.Constraint("Vertical", 39),
    Sketcher.Constraint("Horizontal", 43),
    Sketcher.Constraint("Horizontal", 45),
    Sketcher.Constraint("Horizontal", 47),
    Sketcher.Constraint("Horizontal", 51),
    Sketcher.Constraint("Horizontal", 55),
    Sketcher.Constraint("Horizontal", 57),
    Sketcher.Constraint("Horizontal", 59),
    Sketcher.Constraint("Vertical", 63),
    Sketcher.Constraint("Vertical", 65),
    Sketcher.Constraint("Vertical", 67),
    Sketcher.Constraint("Vertical", 71),
    Sketcher.Constraint("Vertical", 75),
    Sketcher.Constraint("Vertical", 77),
    Sketcher.Constraint("Vertical", 79),
    Sketcher.Constraint("Coincident", 80, 3, -1, 1),
    Sketcher.Constraint("Equal", 0, 2),
    Sketcher.Constraint("Equal", 2, 4),
    Sketcher.Constraint("Equal", 10, 12),
    Sketcher.Constraint("Equal", 8, 14),
    Sketcher.Constraint("Equal", 6, 16),
    Sketcher.Constraint("Equal", 4, 18),
    Sketcher.Constraint("Equal", 18, 20),
    Sketcher.Constraint("Equal", 1, 21),
    Sketcher.Constraint("Equal", 20, 22),
    Sketcher.Constraint("Equal", 22, 24),
    Sketcher.Constraint("Equal", 16, 26),
    Sketcher.Constraint("Equal", 14, 28),
    Sketcher.Constraint("Equal", 12, 30),
    Sketcher.Constraint("Equal", 30, 32),
    Sketcher.Constraint("Equal", 28, 34),
    Sketcher.Constraint("Equal", 26, 36),
    Sketcher.Constraint("Equal", 24, 38),
    Sketcher.Constraint("Equal", 38, 40),
    Sketcher.Constraint("Equal", 21, 41),
    Sketcher.Constraint("Equal", 40, 42),
    Sketcher.Constraint("Equal", 42, 44),
    Sketcher.Constraint("Equal", 36, 46),
    Sketcher.Constraint("Equal", 34, 48),
    Sketcher.Constraint("Equal", 32, 50),
    Sketcher.Constraint("Equal", 50, 52),
    Sketcher.Constraint("Equal", 48, 54),
    Sketcher.Constraint("Equal", 46, 56),
    Sketcher.Constraint("Equal", 44, 58),
    Sketcher.Constraint("Equal", 58, 60),
    Sketcher.Constraint("Equal", 41, 61),
    Sketcher.Constraint("Equal", 60, 62),
    Sketcher.Constraint("Equal", 62, 64),
    Sketcher.Constraint("Equal", 56, 66),
    Sketcher.Constraint("Equal", 54, 68),
    Sketcher.Constraint("Equal", 52, 70),
    Sketcher.Constraint("Equal", 70, 72),
    Sketcher.Constraint("Equal", 68, 74),
    Sketcher.Constraint("Equal", 66, 76),
    Sketcher.Constraint("Equal", 64, 78),
    Sketcher.Constraint("Symmetric", 0, 3, 40, 3, -1, 1),
    Sketcher.Constraint("Symmetric", 1, 3, 41, 3, -1, 1),
    Sketcher.Constraint("Symmetric", 2, 3, 42, 3, -1, 1),
    Sketcher.Constraint("Symmetric", 4, 3, 44, 3, -1, 1),
    Sketcher.Constraint("Symmetric", 6, 3, 46, 3, -1, 1),
    Sketcher.Constraint("Symmetric", 10, 3, 50, 3, -1, 1),
    Sketcher.Constraint("Symmetric", 14, 3, 54, 3, -1, 1),
    Sketcher.Constraint("Symmetric", 18, 3, 58, 3, -1, 1),
    Sketcher.Constraint("Symmetric", 20, 3, 60, 3, -1, 1),
    Sketcher.Constraint("Symmetric", 21, 3, 61, 3, -1, 1),
    Sketcher.Constraint("Symmetric", 22, 3, 62, 3, -1, 1),
    Sketcher.Constraint("Symmetric", 24, 3, 64, 3, -1, 1),
    Sketcher.Constraint("Symmetric", 26, 3, 66, 3, -1, 1),
    Sketcher.Constraint("Symmetric", 30, 3, 70, 3, -1, 1),
    Sketcher.Constraint("Symmetric", 34, 3, 74, 3, -1, 1),
    Sketcher.Constraint("Symmetric", 38, 3, 78, 3, -1, 1),
    Sketcher.Constraint("Symmetric", 8, 3, 14, 3, -2),
    Sketcher.Constraint("Symmetric", 4, 3, 18, 3, -2),
    Sketcher.Constraint("Symmetric", 2, 3, 20, 3, -2),
    Sketcher.Constraint("Symmetric", 1, 3, 21, 3, -2),
    Sketcher.Constraint("Symmetric", 0, 3, 22, 3, -2),
    Sketcher.Constraint("Symmetric", 38, 3, 64, 3, -2),
    Sketcher.Constraint("Symmetric", 36, 3, 66, 3, -2),
    Sketcher.Constraint("Symmetric", 49, 2, 52, 1, -2),
    Sketcher.Constraint("Symmetric", 33, 2, 68, 1, -2),
    Sketcher.Constraint("Symmetric", 29, 2, 72, 1, -2),
    Sketcher.Constraint("Perpendicular", 9, 13),
    Sketcher.Constraint("Parallel", 13, 29),
    Sketcher.Constraint("Perpendicular", 29, 33),
    Sketcher.Constraint("Horizontal", 2, 3, 4, 3),
    Sketcher.Constraint("Horizontal", 26, 3, 76, 3),
    Sketcher.Constraint("Horizontal", 20, 3, 1, 2),
    Sketcher.Constraint("Horizontal", 1, 2, 2, 1),
    Sketcher.Constraint("Horizontal", 3, 2, 4, 1),
    Sketcher.Constraint("Horizontal", 17, 2, 18, 1),
    Sketcher.Constraint("Horizontal", 41, 2, 42, 1),
    Sketcher.Constraint("Horizontal", 57, 2, 58, 1),
    Sketcher.Constraint("Vertical", 22, 3, 24, 3),
    Sketcher.Constraint("Vertical", 16, 3, 46, 3),
    Sketcher.Constraint("Vertical", 6, 3, 56, 3),
    Sketcher.Constraint("Vertical", 78, 3, 0, 1),
    Sketcher.Constraint("Vertical", 21, 2, 22, 1),
    Sketcher.Constraint("Vertical", 23, 2, 24, 1),
    Sketcher.Constraint("Vertical", 37, 2, 38, 1),
    Sketcher.Constraint("Vertical", 61, 2, 62, 1),
    Sketcher.Constraint("Vertical", 77, 2, 78, 1),
    Sketcher.Constraint("Equal", 59, 23),
    Sketcher.Constraint("Equal", 57, 25),
    Sketcher.Constraint("Equal", 55, 27),
    Sketcher.Constraint("Equal", 51, 31),
    Sketcher.Constraint("Equal", 13, 29),
    Sketcher.Constraint("Radius", 0, Q("0.02 in")),
    Sketcher.Constraint("Radius", 8, Q("0.04 in")),
    Sketcher.Constraint("Diameter", 80, Q("0.205 in")),
    Sketcher.Constraint("Radius", 1, Q("0.083 in")),
    Sketcher.Constraint("Radius", 10, Q("0.125 in")),
    Sketcher.Constraint("DistanceX", 0, 3, -1, 1, Q("0.5 in")),
    Sketcher.Constraint("DistanceY", 2, 3, -1, 1, Q("0.5 in")),
    Sketcher.Constraint("Radius", 6, Q("0.0435 in")),
    Sketcher.Constraint("DistanceX", 11, 1, 11, 2, Q("0.1274 in")),
    Sketcher.Constraint("DistanceY", 0, 3, -1, 1, Q("0.396 in")),
    Sketcher.Constraint("DistanceX", 6, 3, -1, 1, Q("0.171 in")),
    Sketcher.Constraint("DistanceY", 10, 3, -1, 1, Q("0.302 in")),
    Sketcher.Constraint("DistanceX", 3, 1, 3, 2, Q("3.2173 mm")),
])
pad1 = doc.addObject("PartDesign::Pad", "Pad")
body.addObject(pad1)
pad1.Profile = sketch1
pad1.Length = Q("4.7244094 in")
pad1.Reversed = True

doc.recompute()
